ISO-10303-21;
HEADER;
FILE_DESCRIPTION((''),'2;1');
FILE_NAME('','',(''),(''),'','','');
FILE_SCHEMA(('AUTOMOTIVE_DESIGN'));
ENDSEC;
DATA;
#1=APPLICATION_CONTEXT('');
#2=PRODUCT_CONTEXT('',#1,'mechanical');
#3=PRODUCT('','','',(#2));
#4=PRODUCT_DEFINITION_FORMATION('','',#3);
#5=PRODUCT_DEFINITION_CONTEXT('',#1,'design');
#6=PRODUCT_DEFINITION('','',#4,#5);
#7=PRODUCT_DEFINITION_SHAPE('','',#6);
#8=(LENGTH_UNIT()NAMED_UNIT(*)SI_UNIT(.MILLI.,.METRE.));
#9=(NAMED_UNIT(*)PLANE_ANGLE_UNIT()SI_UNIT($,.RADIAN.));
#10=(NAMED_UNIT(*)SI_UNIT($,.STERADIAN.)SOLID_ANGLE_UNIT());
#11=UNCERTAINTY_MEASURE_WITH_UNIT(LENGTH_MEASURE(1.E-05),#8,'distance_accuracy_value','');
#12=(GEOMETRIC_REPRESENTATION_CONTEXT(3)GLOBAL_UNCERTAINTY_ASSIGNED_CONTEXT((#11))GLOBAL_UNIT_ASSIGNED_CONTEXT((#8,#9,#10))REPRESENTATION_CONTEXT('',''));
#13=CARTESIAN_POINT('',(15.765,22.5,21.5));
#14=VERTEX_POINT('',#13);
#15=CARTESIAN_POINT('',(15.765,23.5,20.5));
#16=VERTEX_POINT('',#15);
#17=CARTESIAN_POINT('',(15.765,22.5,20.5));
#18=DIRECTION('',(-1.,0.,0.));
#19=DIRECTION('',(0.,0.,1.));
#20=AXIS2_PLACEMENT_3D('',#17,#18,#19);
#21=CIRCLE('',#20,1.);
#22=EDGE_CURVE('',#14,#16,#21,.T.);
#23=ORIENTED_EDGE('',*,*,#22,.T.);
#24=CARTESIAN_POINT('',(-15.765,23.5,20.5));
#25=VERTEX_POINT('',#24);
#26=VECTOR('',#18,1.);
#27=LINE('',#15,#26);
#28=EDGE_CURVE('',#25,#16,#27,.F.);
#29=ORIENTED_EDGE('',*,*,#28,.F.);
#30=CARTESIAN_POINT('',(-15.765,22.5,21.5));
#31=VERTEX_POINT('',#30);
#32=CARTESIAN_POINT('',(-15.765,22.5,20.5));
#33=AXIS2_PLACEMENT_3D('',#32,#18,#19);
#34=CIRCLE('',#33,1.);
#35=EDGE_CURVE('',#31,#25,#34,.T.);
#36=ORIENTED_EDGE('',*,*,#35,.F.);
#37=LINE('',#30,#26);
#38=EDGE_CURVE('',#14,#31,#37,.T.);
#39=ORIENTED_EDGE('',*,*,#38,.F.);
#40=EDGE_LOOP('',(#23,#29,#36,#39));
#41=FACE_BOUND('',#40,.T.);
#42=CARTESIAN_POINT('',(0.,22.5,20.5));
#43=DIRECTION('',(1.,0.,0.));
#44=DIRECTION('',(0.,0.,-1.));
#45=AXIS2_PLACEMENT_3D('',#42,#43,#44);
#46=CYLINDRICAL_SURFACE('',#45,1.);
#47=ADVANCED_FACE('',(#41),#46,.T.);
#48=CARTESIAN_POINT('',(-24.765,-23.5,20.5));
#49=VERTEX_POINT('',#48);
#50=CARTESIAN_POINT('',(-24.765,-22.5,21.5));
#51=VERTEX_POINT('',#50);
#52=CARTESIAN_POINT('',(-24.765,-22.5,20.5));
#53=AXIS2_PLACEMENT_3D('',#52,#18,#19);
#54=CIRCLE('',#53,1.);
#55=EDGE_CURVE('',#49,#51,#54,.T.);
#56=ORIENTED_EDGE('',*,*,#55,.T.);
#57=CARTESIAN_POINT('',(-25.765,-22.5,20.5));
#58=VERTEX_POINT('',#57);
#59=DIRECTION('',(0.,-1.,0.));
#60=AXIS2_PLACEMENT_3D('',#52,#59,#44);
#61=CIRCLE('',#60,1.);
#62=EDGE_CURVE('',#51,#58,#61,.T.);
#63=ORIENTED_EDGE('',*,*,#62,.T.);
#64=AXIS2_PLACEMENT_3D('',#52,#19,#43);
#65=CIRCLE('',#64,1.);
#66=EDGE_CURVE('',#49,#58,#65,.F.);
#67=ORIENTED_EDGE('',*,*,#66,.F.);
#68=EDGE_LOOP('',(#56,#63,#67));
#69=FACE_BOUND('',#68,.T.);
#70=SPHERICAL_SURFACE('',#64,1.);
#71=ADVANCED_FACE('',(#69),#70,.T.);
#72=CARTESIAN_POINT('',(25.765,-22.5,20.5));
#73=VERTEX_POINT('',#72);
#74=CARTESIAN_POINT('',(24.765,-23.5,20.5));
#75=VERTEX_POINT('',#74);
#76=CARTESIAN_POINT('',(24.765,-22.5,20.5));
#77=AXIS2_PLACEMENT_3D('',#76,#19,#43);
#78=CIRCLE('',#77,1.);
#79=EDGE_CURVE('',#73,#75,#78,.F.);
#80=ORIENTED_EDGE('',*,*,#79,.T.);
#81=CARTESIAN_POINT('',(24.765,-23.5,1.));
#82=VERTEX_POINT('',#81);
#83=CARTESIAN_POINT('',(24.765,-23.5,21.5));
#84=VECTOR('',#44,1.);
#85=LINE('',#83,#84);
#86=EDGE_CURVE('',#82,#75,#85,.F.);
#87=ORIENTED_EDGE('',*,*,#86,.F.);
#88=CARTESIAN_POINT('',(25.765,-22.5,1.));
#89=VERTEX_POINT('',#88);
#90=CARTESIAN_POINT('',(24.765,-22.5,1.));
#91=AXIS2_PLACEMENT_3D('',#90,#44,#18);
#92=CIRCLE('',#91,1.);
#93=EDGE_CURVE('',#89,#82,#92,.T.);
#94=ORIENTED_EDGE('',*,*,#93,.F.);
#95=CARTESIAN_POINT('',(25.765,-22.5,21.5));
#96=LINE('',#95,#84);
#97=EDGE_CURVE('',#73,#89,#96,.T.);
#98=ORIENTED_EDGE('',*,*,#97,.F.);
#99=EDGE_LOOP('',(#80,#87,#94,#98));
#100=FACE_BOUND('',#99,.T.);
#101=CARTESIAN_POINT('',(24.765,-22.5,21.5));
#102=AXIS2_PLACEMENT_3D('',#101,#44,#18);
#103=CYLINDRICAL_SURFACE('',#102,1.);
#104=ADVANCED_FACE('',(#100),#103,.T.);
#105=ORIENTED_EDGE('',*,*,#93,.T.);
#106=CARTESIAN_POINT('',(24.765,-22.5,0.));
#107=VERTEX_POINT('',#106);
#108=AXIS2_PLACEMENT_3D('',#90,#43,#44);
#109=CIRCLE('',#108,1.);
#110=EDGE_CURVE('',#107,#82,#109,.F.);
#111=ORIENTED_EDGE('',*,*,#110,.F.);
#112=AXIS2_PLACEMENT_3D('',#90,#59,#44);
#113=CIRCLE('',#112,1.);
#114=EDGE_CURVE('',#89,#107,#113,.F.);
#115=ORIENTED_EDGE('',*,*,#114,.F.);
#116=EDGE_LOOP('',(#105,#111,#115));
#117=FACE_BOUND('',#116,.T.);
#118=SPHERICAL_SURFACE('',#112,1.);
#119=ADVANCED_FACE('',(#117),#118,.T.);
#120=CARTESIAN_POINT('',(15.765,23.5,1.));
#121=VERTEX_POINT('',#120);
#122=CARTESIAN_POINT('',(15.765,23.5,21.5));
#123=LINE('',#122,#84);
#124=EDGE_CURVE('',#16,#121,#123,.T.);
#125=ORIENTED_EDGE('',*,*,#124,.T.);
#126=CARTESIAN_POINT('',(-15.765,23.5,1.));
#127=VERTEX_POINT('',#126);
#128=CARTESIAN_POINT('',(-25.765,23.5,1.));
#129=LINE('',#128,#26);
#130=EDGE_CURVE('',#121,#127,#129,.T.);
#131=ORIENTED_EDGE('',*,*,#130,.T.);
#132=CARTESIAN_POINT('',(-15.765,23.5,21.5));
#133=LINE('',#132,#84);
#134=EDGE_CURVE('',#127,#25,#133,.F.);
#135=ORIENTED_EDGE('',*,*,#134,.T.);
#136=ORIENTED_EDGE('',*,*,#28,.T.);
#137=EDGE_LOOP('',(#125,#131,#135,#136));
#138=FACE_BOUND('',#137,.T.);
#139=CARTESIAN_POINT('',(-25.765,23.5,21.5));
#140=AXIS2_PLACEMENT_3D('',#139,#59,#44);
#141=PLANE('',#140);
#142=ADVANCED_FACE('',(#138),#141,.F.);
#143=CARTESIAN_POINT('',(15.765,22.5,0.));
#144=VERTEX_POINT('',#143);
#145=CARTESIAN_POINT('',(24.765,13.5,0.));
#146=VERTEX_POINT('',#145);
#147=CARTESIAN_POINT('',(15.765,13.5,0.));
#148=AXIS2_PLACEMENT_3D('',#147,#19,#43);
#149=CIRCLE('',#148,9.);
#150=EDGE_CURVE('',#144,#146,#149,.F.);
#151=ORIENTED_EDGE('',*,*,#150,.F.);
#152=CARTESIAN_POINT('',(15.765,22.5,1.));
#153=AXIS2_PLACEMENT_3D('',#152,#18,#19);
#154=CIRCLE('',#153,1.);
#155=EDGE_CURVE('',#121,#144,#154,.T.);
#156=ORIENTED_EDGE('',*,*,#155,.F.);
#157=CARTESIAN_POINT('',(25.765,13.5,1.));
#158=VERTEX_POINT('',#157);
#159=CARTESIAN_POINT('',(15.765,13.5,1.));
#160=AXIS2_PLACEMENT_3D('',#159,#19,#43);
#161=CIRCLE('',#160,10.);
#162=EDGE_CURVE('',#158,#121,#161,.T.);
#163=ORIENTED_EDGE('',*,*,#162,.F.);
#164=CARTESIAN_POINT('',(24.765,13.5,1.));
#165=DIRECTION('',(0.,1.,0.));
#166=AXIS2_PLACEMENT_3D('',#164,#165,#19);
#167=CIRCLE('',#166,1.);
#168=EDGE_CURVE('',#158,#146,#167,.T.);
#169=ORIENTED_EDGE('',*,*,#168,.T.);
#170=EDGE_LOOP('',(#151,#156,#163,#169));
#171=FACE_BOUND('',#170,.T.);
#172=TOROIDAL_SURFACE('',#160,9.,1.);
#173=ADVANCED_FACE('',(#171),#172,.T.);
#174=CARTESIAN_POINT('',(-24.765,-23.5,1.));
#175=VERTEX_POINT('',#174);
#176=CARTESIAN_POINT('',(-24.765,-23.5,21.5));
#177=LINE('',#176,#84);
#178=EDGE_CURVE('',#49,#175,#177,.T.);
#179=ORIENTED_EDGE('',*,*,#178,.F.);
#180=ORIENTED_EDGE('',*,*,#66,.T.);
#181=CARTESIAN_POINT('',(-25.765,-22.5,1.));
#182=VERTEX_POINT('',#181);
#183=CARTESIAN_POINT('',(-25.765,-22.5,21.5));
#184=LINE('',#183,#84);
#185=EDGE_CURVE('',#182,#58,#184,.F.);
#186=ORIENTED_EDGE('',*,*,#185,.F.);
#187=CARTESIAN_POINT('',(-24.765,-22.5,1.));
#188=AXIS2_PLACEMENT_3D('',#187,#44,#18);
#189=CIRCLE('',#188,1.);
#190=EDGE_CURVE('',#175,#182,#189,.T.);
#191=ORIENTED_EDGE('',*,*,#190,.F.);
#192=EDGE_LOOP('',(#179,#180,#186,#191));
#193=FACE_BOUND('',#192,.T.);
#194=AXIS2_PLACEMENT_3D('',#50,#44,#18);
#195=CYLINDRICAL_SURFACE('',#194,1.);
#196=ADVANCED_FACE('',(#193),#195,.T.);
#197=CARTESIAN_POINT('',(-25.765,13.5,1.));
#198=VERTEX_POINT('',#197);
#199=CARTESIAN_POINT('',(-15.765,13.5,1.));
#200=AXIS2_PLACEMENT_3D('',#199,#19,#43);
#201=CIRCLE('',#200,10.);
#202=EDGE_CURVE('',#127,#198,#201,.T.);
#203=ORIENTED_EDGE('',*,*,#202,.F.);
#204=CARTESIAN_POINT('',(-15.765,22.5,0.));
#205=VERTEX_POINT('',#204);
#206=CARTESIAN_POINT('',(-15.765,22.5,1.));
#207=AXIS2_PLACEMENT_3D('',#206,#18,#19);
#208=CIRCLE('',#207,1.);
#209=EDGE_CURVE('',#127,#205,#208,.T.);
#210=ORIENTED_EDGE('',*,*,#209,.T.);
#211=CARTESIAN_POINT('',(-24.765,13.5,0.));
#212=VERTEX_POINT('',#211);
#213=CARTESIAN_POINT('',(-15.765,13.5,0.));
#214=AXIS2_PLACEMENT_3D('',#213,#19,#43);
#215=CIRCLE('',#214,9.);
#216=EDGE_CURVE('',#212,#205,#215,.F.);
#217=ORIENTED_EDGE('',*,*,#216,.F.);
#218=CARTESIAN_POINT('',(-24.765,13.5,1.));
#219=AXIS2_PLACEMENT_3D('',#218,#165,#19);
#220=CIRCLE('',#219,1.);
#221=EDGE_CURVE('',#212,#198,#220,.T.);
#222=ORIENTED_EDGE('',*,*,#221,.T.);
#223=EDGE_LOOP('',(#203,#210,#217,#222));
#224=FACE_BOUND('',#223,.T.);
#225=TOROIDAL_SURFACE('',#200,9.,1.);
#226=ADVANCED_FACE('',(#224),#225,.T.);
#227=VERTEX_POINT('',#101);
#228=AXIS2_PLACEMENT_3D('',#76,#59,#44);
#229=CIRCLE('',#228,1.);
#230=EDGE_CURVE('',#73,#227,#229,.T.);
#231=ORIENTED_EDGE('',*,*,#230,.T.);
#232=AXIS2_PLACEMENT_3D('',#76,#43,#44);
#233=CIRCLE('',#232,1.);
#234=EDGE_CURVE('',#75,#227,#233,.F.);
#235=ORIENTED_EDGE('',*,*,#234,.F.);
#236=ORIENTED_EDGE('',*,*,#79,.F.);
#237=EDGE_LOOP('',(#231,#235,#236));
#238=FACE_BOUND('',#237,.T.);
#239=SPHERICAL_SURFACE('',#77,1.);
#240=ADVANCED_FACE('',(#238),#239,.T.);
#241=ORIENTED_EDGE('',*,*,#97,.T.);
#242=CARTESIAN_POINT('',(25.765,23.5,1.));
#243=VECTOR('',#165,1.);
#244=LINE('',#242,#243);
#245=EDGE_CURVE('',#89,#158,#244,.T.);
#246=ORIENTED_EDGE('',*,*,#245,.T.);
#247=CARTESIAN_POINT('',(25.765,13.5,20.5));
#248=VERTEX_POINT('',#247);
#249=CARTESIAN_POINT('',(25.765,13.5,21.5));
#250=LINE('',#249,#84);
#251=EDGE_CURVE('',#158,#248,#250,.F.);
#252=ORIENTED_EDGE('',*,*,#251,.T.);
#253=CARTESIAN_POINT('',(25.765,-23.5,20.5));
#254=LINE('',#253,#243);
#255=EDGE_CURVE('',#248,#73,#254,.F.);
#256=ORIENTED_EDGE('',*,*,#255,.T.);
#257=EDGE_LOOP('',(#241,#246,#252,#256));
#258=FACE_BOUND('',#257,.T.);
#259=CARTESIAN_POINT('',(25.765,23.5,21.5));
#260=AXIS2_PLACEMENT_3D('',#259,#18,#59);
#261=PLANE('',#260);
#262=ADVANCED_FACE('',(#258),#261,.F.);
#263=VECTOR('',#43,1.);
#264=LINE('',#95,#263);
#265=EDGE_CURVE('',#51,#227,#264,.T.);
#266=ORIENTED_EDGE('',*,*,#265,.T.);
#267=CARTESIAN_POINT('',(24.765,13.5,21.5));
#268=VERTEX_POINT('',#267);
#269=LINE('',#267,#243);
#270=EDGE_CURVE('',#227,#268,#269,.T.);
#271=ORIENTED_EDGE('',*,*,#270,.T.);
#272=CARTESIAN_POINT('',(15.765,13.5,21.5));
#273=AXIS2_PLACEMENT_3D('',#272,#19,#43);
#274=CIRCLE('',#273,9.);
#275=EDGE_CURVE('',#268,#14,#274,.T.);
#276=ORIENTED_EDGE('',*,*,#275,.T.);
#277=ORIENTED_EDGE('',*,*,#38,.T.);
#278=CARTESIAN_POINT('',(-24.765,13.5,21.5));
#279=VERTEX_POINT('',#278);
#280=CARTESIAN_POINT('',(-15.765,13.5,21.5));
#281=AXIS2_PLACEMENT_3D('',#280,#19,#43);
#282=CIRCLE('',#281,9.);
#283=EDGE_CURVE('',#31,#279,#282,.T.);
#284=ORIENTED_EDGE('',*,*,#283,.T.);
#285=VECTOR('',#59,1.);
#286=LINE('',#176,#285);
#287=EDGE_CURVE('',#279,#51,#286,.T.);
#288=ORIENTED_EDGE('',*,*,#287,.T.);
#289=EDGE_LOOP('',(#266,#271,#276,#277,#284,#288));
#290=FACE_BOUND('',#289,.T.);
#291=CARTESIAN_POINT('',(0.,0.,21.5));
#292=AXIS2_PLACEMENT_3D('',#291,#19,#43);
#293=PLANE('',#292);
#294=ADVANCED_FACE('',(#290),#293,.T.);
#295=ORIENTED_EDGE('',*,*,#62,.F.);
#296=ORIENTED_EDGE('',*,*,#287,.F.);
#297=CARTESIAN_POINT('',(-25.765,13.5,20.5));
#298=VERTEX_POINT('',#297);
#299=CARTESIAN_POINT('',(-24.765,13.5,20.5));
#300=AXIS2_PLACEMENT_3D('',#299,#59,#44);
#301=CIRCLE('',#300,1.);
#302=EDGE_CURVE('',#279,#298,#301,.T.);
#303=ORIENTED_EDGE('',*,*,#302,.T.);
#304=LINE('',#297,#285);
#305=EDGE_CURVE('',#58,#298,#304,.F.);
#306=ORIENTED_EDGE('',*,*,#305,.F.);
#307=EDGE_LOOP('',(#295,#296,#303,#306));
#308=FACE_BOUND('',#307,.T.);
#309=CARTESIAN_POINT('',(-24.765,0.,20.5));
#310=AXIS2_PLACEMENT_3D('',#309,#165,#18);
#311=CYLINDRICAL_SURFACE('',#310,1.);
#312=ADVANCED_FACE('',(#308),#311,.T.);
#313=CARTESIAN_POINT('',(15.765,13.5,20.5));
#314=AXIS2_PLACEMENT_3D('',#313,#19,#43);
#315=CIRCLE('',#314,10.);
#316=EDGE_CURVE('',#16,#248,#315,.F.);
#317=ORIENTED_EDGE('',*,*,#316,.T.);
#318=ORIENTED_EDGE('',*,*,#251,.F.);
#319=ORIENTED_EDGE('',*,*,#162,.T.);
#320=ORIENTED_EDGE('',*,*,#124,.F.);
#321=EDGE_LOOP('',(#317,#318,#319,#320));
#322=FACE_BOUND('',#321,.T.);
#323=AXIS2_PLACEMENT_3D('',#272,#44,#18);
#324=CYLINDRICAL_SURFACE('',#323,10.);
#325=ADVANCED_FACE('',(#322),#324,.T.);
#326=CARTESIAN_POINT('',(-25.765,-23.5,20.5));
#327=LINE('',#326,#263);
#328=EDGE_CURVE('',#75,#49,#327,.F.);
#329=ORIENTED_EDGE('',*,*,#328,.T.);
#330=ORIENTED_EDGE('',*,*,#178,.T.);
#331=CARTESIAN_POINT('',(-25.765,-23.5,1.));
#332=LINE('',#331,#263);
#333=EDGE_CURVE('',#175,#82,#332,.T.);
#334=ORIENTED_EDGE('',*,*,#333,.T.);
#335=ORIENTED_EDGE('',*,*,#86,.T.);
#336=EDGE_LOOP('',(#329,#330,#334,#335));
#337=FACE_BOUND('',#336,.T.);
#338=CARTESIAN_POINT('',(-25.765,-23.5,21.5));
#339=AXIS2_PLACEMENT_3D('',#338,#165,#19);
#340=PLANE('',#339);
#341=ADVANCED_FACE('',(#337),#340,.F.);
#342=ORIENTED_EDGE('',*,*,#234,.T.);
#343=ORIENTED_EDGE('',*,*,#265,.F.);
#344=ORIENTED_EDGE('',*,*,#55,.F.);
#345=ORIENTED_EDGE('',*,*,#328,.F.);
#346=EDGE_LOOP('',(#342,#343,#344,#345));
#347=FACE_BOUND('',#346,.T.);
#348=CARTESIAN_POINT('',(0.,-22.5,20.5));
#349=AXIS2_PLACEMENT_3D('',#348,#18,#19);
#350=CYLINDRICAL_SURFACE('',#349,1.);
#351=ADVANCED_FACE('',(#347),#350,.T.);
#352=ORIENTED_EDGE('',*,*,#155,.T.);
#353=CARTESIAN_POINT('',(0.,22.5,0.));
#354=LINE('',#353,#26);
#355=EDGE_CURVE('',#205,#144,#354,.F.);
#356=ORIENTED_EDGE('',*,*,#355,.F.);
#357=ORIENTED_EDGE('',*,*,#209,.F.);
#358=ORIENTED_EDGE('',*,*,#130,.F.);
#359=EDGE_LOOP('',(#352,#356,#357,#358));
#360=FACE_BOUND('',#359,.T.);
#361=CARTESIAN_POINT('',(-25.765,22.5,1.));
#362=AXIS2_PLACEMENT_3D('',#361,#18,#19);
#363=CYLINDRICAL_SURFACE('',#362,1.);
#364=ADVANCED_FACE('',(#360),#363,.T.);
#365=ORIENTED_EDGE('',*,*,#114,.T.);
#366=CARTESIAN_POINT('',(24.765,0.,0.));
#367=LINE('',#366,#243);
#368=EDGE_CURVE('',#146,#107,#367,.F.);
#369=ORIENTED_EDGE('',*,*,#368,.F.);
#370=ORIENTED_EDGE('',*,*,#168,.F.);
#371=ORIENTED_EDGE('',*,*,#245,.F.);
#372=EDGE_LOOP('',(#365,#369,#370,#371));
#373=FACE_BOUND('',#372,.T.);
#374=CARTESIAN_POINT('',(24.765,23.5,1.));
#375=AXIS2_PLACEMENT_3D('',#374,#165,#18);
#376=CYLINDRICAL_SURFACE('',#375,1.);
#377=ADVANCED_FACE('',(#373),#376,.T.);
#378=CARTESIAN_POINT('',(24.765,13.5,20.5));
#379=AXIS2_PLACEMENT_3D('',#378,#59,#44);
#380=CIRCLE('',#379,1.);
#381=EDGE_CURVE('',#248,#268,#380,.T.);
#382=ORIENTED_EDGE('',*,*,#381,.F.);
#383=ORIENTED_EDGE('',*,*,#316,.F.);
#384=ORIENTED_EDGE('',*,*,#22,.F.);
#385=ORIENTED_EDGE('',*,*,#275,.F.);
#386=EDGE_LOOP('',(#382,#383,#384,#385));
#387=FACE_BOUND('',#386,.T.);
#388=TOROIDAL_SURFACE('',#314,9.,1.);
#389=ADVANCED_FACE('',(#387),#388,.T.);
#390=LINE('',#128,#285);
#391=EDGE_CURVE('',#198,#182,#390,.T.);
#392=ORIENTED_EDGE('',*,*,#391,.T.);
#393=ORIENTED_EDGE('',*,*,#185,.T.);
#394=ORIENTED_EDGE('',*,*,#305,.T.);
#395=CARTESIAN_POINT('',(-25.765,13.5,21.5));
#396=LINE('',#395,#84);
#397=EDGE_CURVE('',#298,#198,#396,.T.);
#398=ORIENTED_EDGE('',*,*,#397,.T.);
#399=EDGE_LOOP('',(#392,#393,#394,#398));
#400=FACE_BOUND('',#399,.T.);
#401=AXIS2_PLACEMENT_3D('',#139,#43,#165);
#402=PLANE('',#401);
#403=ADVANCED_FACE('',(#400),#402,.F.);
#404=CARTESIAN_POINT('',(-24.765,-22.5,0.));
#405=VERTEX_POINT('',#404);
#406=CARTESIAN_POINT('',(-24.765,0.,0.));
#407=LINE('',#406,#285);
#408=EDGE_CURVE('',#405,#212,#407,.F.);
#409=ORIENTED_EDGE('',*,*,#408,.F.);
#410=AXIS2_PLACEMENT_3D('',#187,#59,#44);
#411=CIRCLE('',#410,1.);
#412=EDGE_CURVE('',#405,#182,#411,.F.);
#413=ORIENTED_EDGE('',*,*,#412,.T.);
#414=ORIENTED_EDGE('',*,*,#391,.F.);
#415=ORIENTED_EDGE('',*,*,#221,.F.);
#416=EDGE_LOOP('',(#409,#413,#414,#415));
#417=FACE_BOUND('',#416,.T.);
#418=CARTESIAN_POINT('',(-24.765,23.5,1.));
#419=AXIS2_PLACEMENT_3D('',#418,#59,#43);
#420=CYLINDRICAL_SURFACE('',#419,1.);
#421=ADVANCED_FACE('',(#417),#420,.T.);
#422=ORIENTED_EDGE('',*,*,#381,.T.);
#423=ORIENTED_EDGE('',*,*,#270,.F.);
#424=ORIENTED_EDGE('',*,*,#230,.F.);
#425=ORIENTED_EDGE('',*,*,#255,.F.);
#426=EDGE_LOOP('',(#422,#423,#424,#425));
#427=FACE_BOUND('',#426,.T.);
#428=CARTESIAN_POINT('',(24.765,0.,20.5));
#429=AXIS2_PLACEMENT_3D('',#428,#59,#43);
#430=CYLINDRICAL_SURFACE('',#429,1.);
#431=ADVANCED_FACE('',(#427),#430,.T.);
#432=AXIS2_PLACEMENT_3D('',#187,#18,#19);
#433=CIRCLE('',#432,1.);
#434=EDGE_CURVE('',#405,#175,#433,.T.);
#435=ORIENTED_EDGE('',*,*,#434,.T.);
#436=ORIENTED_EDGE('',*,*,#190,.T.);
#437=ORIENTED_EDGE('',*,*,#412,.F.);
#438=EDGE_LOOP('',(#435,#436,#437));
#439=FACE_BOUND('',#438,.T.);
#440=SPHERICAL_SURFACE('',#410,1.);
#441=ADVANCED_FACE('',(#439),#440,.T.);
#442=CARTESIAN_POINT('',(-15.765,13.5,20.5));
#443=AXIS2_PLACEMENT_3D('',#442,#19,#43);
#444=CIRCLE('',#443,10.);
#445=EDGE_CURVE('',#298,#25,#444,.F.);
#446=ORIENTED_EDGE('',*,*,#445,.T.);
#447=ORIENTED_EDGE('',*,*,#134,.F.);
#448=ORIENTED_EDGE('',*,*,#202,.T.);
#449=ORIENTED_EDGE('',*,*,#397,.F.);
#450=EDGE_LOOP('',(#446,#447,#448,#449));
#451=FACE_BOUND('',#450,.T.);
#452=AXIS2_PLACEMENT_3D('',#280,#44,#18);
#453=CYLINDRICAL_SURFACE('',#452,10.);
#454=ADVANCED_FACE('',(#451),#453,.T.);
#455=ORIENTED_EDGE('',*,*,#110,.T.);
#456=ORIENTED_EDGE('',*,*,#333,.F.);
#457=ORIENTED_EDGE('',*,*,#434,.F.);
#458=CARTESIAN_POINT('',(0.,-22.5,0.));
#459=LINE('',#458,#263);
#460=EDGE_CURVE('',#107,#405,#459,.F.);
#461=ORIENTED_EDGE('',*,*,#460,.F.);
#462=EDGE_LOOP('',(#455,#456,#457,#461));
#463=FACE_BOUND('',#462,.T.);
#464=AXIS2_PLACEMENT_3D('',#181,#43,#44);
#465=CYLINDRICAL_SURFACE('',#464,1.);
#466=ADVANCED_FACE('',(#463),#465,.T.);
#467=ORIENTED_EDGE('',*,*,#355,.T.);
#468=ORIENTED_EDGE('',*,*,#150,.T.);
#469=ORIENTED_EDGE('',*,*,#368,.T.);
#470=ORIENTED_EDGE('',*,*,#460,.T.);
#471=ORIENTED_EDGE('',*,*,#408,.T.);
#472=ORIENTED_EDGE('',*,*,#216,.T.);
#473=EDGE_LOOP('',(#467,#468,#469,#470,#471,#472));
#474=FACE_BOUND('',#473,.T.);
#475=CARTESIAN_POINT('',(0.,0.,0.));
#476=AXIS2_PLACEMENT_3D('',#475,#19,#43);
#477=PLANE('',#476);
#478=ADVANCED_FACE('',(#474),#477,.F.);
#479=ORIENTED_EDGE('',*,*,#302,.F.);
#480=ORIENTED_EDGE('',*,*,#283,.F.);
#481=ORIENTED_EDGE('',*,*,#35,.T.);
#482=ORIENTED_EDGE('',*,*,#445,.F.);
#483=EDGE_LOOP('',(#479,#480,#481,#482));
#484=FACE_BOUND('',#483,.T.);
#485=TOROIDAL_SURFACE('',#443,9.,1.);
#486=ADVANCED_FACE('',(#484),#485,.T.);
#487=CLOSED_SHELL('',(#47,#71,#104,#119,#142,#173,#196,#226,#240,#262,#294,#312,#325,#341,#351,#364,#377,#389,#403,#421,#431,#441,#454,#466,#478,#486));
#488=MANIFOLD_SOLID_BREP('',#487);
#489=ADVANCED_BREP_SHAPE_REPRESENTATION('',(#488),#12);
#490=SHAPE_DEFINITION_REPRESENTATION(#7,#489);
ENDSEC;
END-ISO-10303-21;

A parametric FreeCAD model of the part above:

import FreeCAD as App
import Part
import Sketcher

V = App.Vector
Q = App.Units.Quantity


def edges_at(feature, points):
    """Names of the edges that pass closest to the given points."""
    edges = feature.Shape.Edges
    near = lambda p: min(range(len(edges)), key=lambda i: edges[i].distToShape(Part.Vertex(*p))[0])
    return sorted({f"Edge{near(p) + 1}" for p in points})


def add_polygon(sketch, points):
    """Adds a closed chain of lines whose ends are joined by coincident constraints."""
    first, n = sketch.GeometryCount, len(points)
    for a, b in zip(points, points[1:] + points[:1]):
        sketch.addGeometry(Part.LineSegment(App.Vector(*a, 0), App.Vector(*b, 0)), False)
    for i in range(n):
        sketch.addConstraint(Sketcher.Constraint("Coincident", first + i, 2, first + (i + 1) % n, 1))

doc = App.newDocument("Part")
params = doc.addObject("Spreadsheet::Sheet", "Params")
for row, (alias, value) in enumerate([
    ("sketch1_height", "47 mm"),
    ("sketch1_width", "51.53 mm"),
    ("pad1_length", "21.5 mm"),
    ("fillet_radius", "10 mm"),
    ("fillet2_radius", "1 mm"),
], start=1):
    params.set(f"A{row}", alias)
    params.set(f"B{row}", "=" + value)
    params.setAlias(f"B{row}", alias)

body = doc.addObject("PartDesign::Body", "Body")

sketch1 = body.newObject("Sketcher::SketchObject", "Sketch")
sketch1.AttachmentSupport = (doc.getObject("XY_Plane"), [""])
sketch1.MapMode = "FlatFace"
add_polygon(sketch1, [(-25.765, 23.5), (-25.765, -23.5), (25.765, -23.5), (25.765, 23.5)])
sketch1.addConstraint([
    Sketcher.Constraint("Vertical", 0),
    Sketcher.Constraint("Horizontal", 1),
    Sketcher.Constraint("Vertical", 2),
    Sketcher.Constraint("Horizontal", 3),
    Sketcher.Constraint("Symmetric", 0, 2, 2, 2, -1, 1),
    Sketcher.Constraint("DistanceY", 0, 2, 0, 1, Q("47 mm")),
    Sketcher.Constraint("DistanceX", 1, 1, 1, 2, Q("51.53 mm")),
])
sketch1.setExpression("Constraints[9]", "Params.sketch1_height")
sketch1.setExpression("Constraints[10]", "Params.sketch1_width")
pad1 = body.newObject("PartDesign::Pad", "Pad")
pad1.Profile = sketch1
pad1.setExpression("Length", "Params.pad1_length")
doc.recompute()

fillet = body.newObject("PartDesign::Fillet", "Fillet")
fillet.Base = (pad1, edges_at(pad1, [(-25.765, 23.5, 10.75), (25.765, 23.5, 10.75)]))
fillet.setExpression("Radius", "Params.fillet_radius")
doc.recompute()

fillet2 = body.newObject("PartDesign::Fillet", "Fillet001")
fillet2.Base = (fillet, ["Edge1"])
fillet2.UseAllEdges = True
fillet2.setExpression("Radius", "Params.fillet2_radius")

doc.recompute()
